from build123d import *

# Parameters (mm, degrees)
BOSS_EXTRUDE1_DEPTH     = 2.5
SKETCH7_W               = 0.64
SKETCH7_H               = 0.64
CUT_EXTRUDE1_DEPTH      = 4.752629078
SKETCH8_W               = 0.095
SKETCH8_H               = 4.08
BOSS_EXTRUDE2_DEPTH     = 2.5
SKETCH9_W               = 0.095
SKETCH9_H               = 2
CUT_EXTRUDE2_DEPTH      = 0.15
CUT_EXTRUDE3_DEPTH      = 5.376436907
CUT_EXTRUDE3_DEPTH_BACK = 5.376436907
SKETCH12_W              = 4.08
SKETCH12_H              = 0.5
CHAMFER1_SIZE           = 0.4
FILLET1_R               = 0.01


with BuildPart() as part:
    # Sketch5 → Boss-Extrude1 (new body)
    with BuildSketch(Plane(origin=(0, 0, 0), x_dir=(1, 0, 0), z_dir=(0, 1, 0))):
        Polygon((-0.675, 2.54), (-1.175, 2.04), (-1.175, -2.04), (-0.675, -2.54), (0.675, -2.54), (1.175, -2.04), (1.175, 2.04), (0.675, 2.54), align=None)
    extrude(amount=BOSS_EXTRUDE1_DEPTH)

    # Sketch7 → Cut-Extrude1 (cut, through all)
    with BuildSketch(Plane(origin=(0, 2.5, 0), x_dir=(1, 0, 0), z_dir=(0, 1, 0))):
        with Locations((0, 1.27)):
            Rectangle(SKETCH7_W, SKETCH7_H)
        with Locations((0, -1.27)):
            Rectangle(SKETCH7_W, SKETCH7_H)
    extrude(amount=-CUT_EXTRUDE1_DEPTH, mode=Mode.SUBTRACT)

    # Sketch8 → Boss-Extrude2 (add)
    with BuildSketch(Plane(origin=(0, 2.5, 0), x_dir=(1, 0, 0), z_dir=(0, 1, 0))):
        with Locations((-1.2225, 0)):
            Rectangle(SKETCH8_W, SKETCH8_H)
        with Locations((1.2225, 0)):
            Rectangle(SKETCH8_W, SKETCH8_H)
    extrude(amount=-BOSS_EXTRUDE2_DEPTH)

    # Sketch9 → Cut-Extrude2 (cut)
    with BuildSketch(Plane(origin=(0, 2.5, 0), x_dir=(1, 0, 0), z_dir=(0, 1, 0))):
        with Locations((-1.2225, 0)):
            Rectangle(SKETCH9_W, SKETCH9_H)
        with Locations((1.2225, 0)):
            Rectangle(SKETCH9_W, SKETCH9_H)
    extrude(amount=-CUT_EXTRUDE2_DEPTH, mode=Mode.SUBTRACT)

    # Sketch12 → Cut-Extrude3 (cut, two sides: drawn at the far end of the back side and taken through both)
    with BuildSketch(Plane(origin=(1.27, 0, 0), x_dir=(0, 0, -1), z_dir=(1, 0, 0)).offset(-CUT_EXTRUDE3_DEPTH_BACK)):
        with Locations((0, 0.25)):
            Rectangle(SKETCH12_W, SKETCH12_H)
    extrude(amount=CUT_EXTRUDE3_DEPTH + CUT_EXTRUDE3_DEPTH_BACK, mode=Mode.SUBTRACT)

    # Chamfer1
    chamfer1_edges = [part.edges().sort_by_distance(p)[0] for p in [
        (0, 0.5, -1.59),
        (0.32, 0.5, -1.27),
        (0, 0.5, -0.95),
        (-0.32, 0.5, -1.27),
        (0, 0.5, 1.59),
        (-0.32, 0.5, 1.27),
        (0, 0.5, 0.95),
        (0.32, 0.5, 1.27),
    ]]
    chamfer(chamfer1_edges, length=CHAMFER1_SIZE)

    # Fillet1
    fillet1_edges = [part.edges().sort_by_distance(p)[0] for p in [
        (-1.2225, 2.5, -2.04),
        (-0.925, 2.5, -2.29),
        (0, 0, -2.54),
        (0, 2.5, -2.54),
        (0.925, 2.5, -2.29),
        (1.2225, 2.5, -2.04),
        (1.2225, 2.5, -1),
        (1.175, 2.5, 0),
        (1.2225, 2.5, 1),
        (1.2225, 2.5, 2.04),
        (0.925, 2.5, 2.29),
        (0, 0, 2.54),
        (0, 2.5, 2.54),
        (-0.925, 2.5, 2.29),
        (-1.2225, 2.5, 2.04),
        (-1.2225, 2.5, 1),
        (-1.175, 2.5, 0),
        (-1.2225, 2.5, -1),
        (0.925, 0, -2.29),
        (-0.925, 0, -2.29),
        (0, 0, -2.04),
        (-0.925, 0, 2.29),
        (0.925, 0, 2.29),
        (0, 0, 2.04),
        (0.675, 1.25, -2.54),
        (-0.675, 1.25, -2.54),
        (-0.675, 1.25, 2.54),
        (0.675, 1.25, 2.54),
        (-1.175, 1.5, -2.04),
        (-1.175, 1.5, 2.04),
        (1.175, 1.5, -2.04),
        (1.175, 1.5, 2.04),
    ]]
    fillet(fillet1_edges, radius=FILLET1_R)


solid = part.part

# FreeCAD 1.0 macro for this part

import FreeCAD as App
import Part
import Sketcher
from FreeCAD import Vector


def edges_at(feature, points):
    """Names of the edges that pass closest to the given points."""
    edges = feature.Shape.Edges
    near = lambda p: min(range(len(edges)), key=lambda i: edges[i].distToShape(Part.Vertex(*p))[0])
    return sorted({f"Edge{near(p) + 1}" for p in points})


def add_polygon(sketch, points):
    """Adds a closed chain of lines whose ends are joined by coincident constraints."""
    first, n = sketch.GeometryCount, len(points)
    for a, b in zip(points, points[1:] + points[:1]):
        sketch.addGeometry(Part.LineSegment(App.Vector(*a, 0), App.Vector(*b, 0)), False)
    for i in range(n):
        sketch.addConstraint(Sketcher.Constraint("Coincident", first + i, 2, first + (i + 1) % n, 1))

doc = App.newDocument("Part")
params = doc.addObject("Spreadsheet::Sheet", "Params")
for row, (alias, value) in enumerate([
    ("sketch1_width", "1.35 mm"),
    ("sketch1_height", "4.08 mm"),
    ("pad1_length", "2.5 mm"),
    ("sketch2_width", "0.64 mm"),
    ("sketch3_height", "4.08 mm"),
    ("pad2_length", "2.5 mm"),
    ("sketch4_height", "2 mm"),
    ("pocket2_length", "0.15 mm"),
    ("sketch5_width", "0.5 mm"),
    ("sketch5_height", "4.08 mm"),
    ("chamfer_size", "0.4 mm"),
    ("fillet_radius", "0.01 mm"),
], start=1):
    params.set(f"A{row}", alias)
    params.set(f"B{row}", "=" + value)
    params.setAlias(f"B{row}", alias)

body = doc.addObject("PartDesign::Body", "Body")

# Sketch on XZ plane
sketch1 = body.newObject("Sketcher::SketchObject", "Sketch")
sketch1.AttachmentSupport = (doc.getObject("XZ_Plane"), [""])
sketch1.MapMode = "FlatFace"
add_polygon(sketch1, [(-0.675, -2.54), (-1.175, -2.04), (-1.175, 2.04), (-0.675, 2.54), (0.675, 2.54), (1.175, 2.04), (1.175, -2.04), (0.675, -2.54)])  # lines 0-7
sketch1.addConstraint([
    Sketcher.Constraint("Vertical", 1),
    Sketcher.Constraint("Horizontal", 3),
    Sketcher.Constraint("Vertical", 5),
    Sketcher.Constraint("Horizontal", 7),
    Sketcher.Constraint("Symmetric", 0, 2, 4, 2, -1, 1),
    Sketcher.Constraint("Symmetric", 2, 2, 6, 2, -1, 1),
    Sketcher.Constraint("Perpendicular", 0, 2),
    Sketcher.Constraint("Perpendicular", 2, 4),
    Sketcher.Constraint("Perpendicular", 4, 6),
    Sketcher.Constraint("Horizontal", 1, 2, 4, 2),
    Sketcher.Constraint("Vertical", 3, 2, 6, 2),
    Sketcher.Constraint("DistanceX", 3, 1, 3, 2, 1.35),
    Sketcher.Constraint("DistanceY", 1, 1, 1, 2, 4.08),
    Sketcher.Constraint("DistanceX", 1, 2, 2, 2, 0.5),
])
sketch1.setExpression("Constraints[19]", "Params.sketch1_width")
sketch1.setExpression("Constraints[20]", "Params.sketch1_height")
pad1 = body.newObject("PartDesign::Pad", "Pad")
pad1.Profile = sketch1
pad1.setExpression("Length", "Params.pad1_length")
pad1.Reversed = True

# Sketch on XZ plane
sketch2 = body.newObject("Sketcher::SketchObject", "Sketch001")
sketch2.AttachmentSupport = (doc.getObject("XZ_Plane"), [""])
sketch2.MapMode = "FlatFace"
sketch2.AttachmentOffset = App.Placement(Vector(0, 0, -2.5), App.Rotation())
add_polygon(sketch2, [(-0.32, -1.59), (-0.32, -0.95), (0.32, -0.95), (0.32, -1.59)])  # lines 0-3
add_polygon(sketch2, [(-0.32, 0.95), (-0.32, 1.59), (0.32, 1.59), (0.32, 0.95)])  # lines 4-7
sketch2.addConstraint([
    Sketcher.Constraint("Vertical", 0),
    Sketcher.Constraint("Horizontal", 1),
    Sketcher.Constraint("Vertical", 2),
    Sketcher.Constraint("Horizontal", 3),
    Sketcher.Constraint("Vertical", 4),
    Sketcher.Constraint("Horizontal", 5),
    Sketcher.Constraint("Vertical", 6),
    Sketcher.Constraint("Horizontal", 7),
    Sketcher.Constraint("Symmetric", 2, 2, 4, 2, -1, 1),
    Sketcher.Constraint("Symmetric", 0, 2, 6, 2, -1, 1),
    Sketcher.Constraint("Vertical", 3, 2, 4, 2),
    Sketcher.Constraint("Equal", 7, 0),
    Sketcher.Constraint("DistanceX", 1, 1, 1, 2, 0.64),
    Sketcher.Constraint("DistanceY", 1, 2, 6, 2, 1.9),
])
sketch2.setExpression("Constraints[20]", "Params.sketch2_width")
pocket1 = body.newObject("PartDesign::Pocket", "Pocket")
pocket1.Profile = sketch2
pocket1.Type = "ThroughAll"
pocket1.Reversed = True

# Sketch on XZ plane
sketch3 = body.newObject("Sketcher::SketchObject", "Sketch002")
sketch3.AttachmentSupport = (doc.getObject("XZ_Plane"), [""])
sketch3.MapMode = "FlatFace"
sketch3.AttachmentOffset = App.Placement(Vector(0, 0, -2.5), App.Rotation())
add_polygon(sketch3, [(-1.27, -2.04), (-1.27, 2.04), (-1.175, 2.04), (-1.175, -2.04)])  # lines 0-3
add_polygon(sketch3, [(1.175, -2.04), (1.175, 2.04), (1.27, 2.04), (1.27, -2.04)])  # lines 4-7
sketch3.addConstraint([
    Sketcher.Constraint("Vertical", 0),
    Sketcher.Constraint("Horizontal", 1),
    Sketcher.Constraint("Vertical", 2),
    Sketcher.Constraint("Horizontal", 3),
    Sketcher.Constraint("Vertical", 4),
    Sketcher.Constraint("Horizontal", 5),
    Sketcher.Constraint("Vertical", 6),
    Sketcher.Constraint("Horizontal", 7),
    Sketcher.Constraint("Symmetric", 2, 2, 4, 2, -1, 1),
    Sketcher.Constraint("Symmetric", 0, 2, 6, 2, -1, 1),
    Sketcher.Constraint("Horizontal", 1, 2, 4, 2),
    Sketcher.Constraint("DistanceY", 0, 1, 0, 2, 4.08),
    Sketcher.Constraint("DistanceX", 1, 1, 1, 2, 0.095),
    Sketcher.Constraint("DistanceX", 0, 2, -1, 1, 1.27),
])
sketch3.setExpression("Constraints[19]", "Params.sketch3_height")
pad2 = body.newObject("PartDesign::Pad", "Pad001")
pad2.Profile = sketch3
pad2.setExpression("Length", "Params.pad2_length")

# Sketch on XZ plane
sketch4 = body.newObject("Sketcher::SketchObject", "Sketch003")
sketch4.AttachmentSupport = (doc.getObject("XZ_Plane"), [""])
sketch4.MapMode = "FlatFace"
sketch4.AttachmentOffset = App.Placement(Vector(0, 0, -2.5), App.Rotation())
add_polygon(sketch4, [(-1.27, -1), (-1.27, 1), (-1.175, 1), (-1.175, -1)])  # lines 0-3
add_polygon(sketch4, [(1.175, -1), (1.175, 1), (1.27, 1), (1.27, -1)])  # lines 4-7
sketch4.addConstraint([
    Sketcher.Constraint("Vertical", 0),
    Sketcher.Constraint("Horizontal", 1),
    Sketcher.Constraint("Vertical", 2),
    Sketcher.Constraint("Horizontal", 3),
    Sketcher.Constraint("Vertical", 4),
    Sketcher.Constraint("Horizontal", 5),
    Sketcher.Constraint("Vertical", 6),
    Sketcher.Constraint("Horizontal", 7),
    Sketcher.Constraint("Symmetric", 2, 2, 4, 2, -1, 1),
    Sketcher.Constraint("Symmetric", 0, 2, 6, 2, -1, 1),
    Sketcher.Constraint("Horizontal", 1, 2, 4, 2),
    Sketcher.Constraint("DistanceY", 0, 1, 0, 2, 2.0),
    Sketcher.Constraint("DistanceX", 1, 1, 1, 2, 0.095),
    Sketcher.Constraint("DistanceX", 0, 2, -1, 1, 1.27),
])
sketch4.setExpression("Constraints[19]", "Params.sketch4_height")
pocket2 = body.newObject("PartDesign::Pocket", "Pocket001")
pocket2.Profile = sketch4
pocket2.setExpression("Length", "Params.pocket2_length")
pocket2.Reversed = True

# Sketch on YZ plane
sketch5 = body.newObject("Sketcher::SketchObject", "Sketch004")
sketch5.AttachmentSupport = (doc.getObject("YZ_Plane"), [""])
sketch5.MapMode = "FlatFace"
sketch5.AttachmentOffset = App.Placement(Vector(0, 0, 1.27), App.Rotation())
add_polygon(sketch5, [(0.5, 2.04), (0, 2.04), (0, -2.04), (0.5, -2.04)])  # lines 0-3
sketch5.addConstraint([
    Sketcher.Constraint("Horizontal", 0),
    Sketcher.Constraint("Vertical", 1),
    Sketcher.Constraint("Horizontal", 2),
    Sketcher.Constraint("Vertical", 3),
    Sketcher.Constraint("Symmetric", 0, 2, 1, 2, -1, 1),
    Sketcher.Constraint("DistanceX", 0, 2, 0, 1, 0.5),
    Sketcher.Constraint("DistanceY", 1, 2, 1, 1, 4.08),
])
sketch5.setExpression("Constraints[9]", "Params.sketch5_width")
sketch5.setExpression("Constraints[10]", "Params.sketch5_height")
pocket3 = body.newObject("PartDesign::Pocket", "Pocket002")
pocket3.Profile = sketch5
pocket3.Type = "ThroughAll"
pocket3.Midplane = True
doc.recompute()

chamfer = body.newObject("PartDesign::Chamfer", "Chamfer")
chamfer.Base = (pocket3, edges_at(pocket3, [
    (0, 0.5, -1.59),
    (0.32, 0.5, -1.27),
    (0, 0.5, -0.95),
    (-0.32, 0.5, -1.27),
    (0, 0.5, 1.59),
    (-0.32, 0.5, 1.27),
    (0, 0.5, 0.95),
    (0.32, 0.5, 1.27),
]))
chamfer.setExpression("Size", "Params.chamfer_size")
doc.recompute()

fillet = body.newObject("PartDesign::Fillet", "Fillet")
fillet.Base = (chamfer, edges_at(chamfer, [
    (-1.222, 2.5, -2.04),
    (-0.925, 2.5, -2.29),
    (0, 0, -2.54),
    (0, 2.5, -2.54),
    (0.925, 2.5, -2.29),
    (1.222, 2.5, -2.04),
    (1.222, 2.5, -1),
    (1.175, 2.5, 0),
    (1.222, 2.5, 1),
    (1.222, 2.5, 2.04),
    (0.925, 2.5, 2.29),
    (0, 0, 2.54),
    (0, 2.5, 2.54),
    (-0.925, 2.5, 2.29),
    (-1.222, 2.5, 2.04),
    (-1.222, 2.5, 1),
    (-1.175, 2.5, 0),
    (-1.222, 2.5, -1),
    (0.925, 0, -2.29),
    (-0.925, 0, -2.29),
    (0, 0, -2.04),
    (-0.925, 0, 2.29),
    (0.925, 0, 2.29),
    (0, 0, 2.04),
    (0.675, 1.25, -2.54),
    (-0.675, 1.25, -2.54),
    (-0.675, 1.25, 2.54),
    (0.675, 1.25, 2.54),
    (-1.175, 1.5, -2.04),
    (-1.175, 1.5, 2.04),
    (1.175, 1.5, -2.04),
    (1.175, 1.5, 2.04),
]))
fillet.setExpression("Radius", "Params.fillet_radius")

doc.recompute()
